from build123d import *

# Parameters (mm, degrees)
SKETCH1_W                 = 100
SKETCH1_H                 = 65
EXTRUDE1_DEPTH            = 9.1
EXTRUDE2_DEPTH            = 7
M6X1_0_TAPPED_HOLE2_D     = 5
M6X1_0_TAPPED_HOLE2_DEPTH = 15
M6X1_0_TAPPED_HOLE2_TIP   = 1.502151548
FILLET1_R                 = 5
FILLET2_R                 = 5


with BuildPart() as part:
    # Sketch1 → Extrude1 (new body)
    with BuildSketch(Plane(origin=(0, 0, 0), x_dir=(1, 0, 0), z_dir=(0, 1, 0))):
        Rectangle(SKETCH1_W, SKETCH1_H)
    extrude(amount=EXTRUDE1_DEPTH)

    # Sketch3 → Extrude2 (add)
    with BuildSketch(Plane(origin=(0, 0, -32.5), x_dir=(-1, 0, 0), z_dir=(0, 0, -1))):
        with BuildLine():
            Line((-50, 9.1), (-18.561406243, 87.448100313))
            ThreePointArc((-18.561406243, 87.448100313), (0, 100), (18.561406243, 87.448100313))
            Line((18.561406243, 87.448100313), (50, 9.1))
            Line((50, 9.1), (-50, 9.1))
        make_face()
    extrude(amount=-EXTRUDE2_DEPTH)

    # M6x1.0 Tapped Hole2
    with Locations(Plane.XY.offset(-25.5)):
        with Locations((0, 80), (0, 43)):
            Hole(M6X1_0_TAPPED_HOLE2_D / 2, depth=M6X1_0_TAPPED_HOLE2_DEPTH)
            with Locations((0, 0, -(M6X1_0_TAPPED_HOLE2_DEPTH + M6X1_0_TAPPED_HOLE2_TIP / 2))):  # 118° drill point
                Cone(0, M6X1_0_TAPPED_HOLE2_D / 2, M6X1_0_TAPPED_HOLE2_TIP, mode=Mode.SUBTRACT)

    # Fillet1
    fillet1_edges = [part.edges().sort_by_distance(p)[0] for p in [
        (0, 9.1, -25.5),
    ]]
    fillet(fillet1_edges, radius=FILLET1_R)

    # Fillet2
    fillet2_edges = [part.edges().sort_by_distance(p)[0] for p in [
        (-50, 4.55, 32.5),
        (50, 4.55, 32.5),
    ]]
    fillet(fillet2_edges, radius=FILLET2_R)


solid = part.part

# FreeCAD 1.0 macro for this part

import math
import FreeCAD as App
import Part
import Sketcher
Q = App.Units.Quantity


def edges_at(feature, points):
    """Names of the edges that pass closest to the given points."""
    edges = feature.Shape.Edges
    near = lambda p: min(range(len(edges)), key=lambda i: edges[i].distToShape(Part.Vertex(*p))[0])
    return sorted({f"Edge{near(p) + 1}" for p in points})


def add_polygon(sketch, points):
    """Adds a closed chain of lines whose ends are joined by coincident constraints."""
    first, n = sketch.GeometryCount, len(points)
    for a, b in zip(points, points[1:] + points[:1]):
        sketch.addGeometry(Part.LineSegment(App.Vector(*a, 0), App.Vector(*b, 0)), False)
    for i in range(n):
        sketch.addConstraint(Sketcher.Constraint("Coincident", first + i, 2, first + (i + 1) % n, 1))

doc = App.newDocument("Part")
body = doc.addObject("PartDesign::Body", "Body")

sketch1 = body.newObject("Sketcher::SketchObject", "Sketch")
sketch1.AttachmentSupport = (doc.getObject("XZ_Plane"), [""])
sketch1.MapMode = "FlatFace"
add_polygon(sketch1, [(-50, -32.5), (-50, 32.5), (50, 32.5), (50, -32.5)])
sketch1.addConstraint(Sketcher.Constraint("Vertical", 0))
sketch1.addConstraint(Sketcher.Constraint("Horizontal", 1))
sketch1.addConstraint(Sketcher.Constraint("Vertical", 2))
sketch1.addConstraint(Sketcher.Constraint("Horizontal", 3))
sketch1.addConstraint(Sketcher.Constraint("Symmetric", 0, 2, 2, 2, -1, 1))
sketch1.addConstraint(Sketcher.Constraint("DistanceX", 1, 1, 1, 2, Q("100 mm")))
sketch1.addConstraint(Sketcher.Constraint("DistanceY", 0, 1, 0, 2, Q("65 mm")))
pad1 = body.newObject("PartDesign::Pad", "Pad")
pad1.Profile = sketch1
pad1.Length = 9.1
pad1.Reversed = True

sketch2 = body.newObject("Sketcher::SketchObject", "Sketch001")
sketch2.AttachmentSupport = (doc.getObject("XY_Plane"), [""])
sketch2.MapMode = "FlatFace"
sketch2.AttachmentOffset = App.Placement(App.Vector(0, 0, -32.5), App.Rotation())
sketch2.addGeometry(Part.LineSegment(App.Vector(18.561406, 87.4481, 0), App.Vector(50, 9.1, 0)), False)
sketch2.addGeometry(Part.LineSegment(App.Vector(50, 9.1, 0), App.Vector(-50, 9.1, 0)), False)
sketch2.addGeometry(Part.LineSegment(App.Vector(-50, 9.1, 0), App.Vector(-18.561406, 87.4481, 0)), False)
sketch2.addGeometry(Part.ArcOfCircle(Part.Circle(App.Vector(0, 80, 0), App.Vector(0, 0, 1), 20), math.radians(21.864017), math.radians(158.135983)), False)
sketch2.addConstraint(Sketcher.Constraint("Coincident", 0, 2, 1, 1))
sketch2.addConstraint(Sketcher.Constraint("Coincident", 1, 2, 2, 1))
sketch2.addConstraint(Sketcher.Constraint("Tangent", 2, 2, 3, 2))
sketch2.addConstraint(Sketcher.Constraint("Tangent", 3, 1, 0, 1))
sketch2.addConstraint(Sketcher.Constraint("Horizontal", 1))
sketch2.addConstraint(Sketcher.Constraint("Symmetric", 2, 2, 3, 1, -2))
sketch2.addConstraint(Sketcher.Constraint("Radius", 3, Q("20 mm")))
sketch2.addConstraint(Sketcher.Constraint("DistanceX", 1, 2, 1, 1, Q("100 mm")))
sketch2.addConstraint(Sketcher.Constraint("DistanceY", -1, 1, 3, 3, Q("80 mm")))
sketch2.addConstraint(Sketcher.Constraint("DistanceY", -1, 1, 0, 2, Q("9.1 mm")))
pad2 = body.newObject("PartDesign::Pad", "Pad001")
pad2.Profile = sketch2
pad2.Length = 7

sketch3 = body.newObject("Sketcher::SketchObject", "Sketch002")
sketch3.AttachmentSupport = (doc.getObject("XY_Plane"), [""])
sketch3.MapMode = "FlatFace"
sketch3.AttachmentOffset = App.Placement(App.Vector(0, 0, -25.5), App.Rotation())
sketch3.addGeometry(Part.Circle(App.Vector(0, 80, 0), App.Vector(0, 0, 1), 2.5), False)
sketch3.addGeometry(Part.Circle(App.Vector(0, 43, 0), App.Vector(0, 0, 1), 2.5), False)
sketch3.addConstraint(Sketcher.Constraint("Equal", 0, 1))
sketch3.addConstraint(Sketcher.Constraint("PointOnObject", 0, 3, -2))
sketch3.addConstraint(Sketcher.Constraint("PointOnObject", 1, 3, -2))
sketch3.addConstraint(Sketcher.Constraint("Diameter", 0, Q("5 mm")))
sketch3.addConstraint(Sketcher.Constraint("DistanceY", -1, 1, 0, 3, Q("80 mm")))
sketch3.addConstraint(Sketcher.Constraint("DistanceY", -1, 1, 1, 3, Q("43 mm")))
doc.recompute()
hole = body.newObject("PartDesign::Hole", "Hole")
hole.Profile = sketch3
hole.ThreadType = "None"
hole.Diameter = 5
hole.DepthType = "Dimension"
hole.Depth = 15
hole.DrillPoint = "Angled"
hole.DrillPointAngle = 118
doc.recompute()

fillet = body.newObject("PartDesign::Fillet", "Fillet")
fillet.Base = (hole, edges_at(hole, [(0, 9.1, -25.5)]))
fillet.Radius = 5
doc.recompute()

fillet2 = body.newObject("PartDesign::Fillet", "Fillet001")
fillet2.Base = (fillet, edges_at(fillet, [(-50, 4.55, 32.5), (50, 4.55, 32.5)]))
fillet2.Radius = 5

doc.recompute()
